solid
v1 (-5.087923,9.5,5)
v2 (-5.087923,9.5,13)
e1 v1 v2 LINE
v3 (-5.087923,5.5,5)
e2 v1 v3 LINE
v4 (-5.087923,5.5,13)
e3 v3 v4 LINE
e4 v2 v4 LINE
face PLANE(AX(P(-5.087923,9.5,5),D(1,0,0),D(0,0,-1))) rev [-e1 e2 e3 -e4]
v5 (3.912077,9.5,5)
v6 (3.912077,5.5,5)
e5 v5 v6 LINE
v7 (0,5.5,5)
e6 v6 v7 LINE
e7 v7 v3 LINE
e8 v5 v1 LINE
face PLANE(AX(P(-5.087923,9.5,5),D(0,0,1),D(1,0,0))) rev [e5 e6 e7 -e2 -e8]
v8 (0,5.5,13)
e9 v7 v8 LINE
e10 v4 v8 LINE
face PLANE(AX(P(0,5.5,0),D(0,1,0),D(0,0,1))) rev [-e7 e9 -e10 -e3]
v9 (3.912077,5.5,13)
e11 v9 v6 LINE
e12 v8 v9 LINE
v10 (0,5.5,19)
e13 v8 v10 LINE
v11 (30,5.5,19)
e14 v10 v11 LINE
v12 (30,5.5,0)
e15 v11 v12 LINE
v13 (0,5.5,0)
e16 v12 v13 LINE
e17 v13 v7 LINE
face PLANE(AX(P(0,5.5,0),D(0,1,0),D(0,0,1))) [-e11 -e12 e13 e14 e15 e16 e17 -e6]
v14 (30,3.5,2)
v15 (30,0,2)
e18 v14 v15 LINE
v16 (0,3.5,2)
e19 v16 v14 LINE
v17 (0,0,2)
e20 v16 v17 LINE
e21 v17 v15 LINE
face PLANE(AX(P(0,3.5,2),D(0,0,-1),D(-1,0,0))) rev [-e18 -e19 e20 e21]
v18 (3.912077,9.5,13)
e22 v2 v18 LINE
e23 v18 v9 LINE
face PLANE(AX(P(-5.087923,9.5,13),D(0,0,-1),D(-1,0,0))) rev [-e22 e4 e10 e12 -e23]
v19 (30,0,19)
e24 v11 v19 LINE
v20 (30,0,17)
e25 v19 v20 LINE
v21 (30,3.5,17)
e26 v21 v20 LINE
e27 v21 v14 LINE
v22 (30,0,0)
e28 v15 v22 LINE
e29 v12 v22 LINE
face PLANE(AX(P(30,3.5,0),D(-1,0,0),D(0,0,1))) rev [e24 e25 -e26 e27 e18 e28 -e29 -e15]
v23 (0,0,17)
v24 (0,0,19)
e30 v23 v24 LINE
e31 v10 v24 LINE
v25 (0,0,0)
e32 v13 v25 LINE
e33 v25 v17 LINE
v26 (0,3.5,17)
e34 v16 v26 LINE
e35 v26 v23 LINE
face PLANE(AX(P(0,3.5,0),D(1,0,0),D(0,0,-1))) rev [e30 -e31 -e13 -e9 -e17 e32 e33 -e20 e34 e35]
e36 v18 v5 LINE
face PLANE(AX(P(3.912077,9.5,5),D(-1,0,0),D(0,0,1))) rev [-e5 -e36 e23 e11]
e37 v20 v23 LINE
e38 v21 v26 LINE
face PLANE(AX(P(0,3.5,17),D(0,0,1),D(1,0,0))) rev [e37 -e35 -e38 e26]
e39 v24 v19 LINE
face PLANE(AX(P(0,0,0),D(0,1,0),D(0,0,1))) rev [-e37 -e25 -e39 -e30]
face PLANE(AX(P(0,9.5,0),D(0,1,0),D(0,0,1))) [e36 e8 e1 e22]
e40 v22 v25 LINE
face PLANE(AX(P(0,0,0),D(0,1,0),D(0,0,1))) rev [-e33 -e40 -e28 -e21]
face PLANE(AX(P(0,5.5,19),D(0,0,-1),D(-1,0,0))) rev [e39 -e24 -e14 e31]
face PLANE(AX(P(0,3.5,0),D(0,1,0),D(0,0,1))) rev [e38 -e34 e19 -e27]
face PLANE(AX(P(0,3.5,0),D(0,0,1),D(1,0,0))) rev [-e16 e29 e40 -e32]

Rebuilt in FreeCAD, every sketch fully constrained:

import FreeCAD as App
import Part
import Sketcher


def add_polygon(sketch, points):
    """Adds a closed chain of lines whose ends are joined by coincident constraints."""
    first, n = sketch.GeometryCount, len(points)
    for a, b in zip(points, points[1:] + points[:1]):
        sketch.addGeometry(Part.LineSegment(App.Vector(*a, 0), App.Vector(*b, 0)), False)
    for i in range(n):
        sketch.addConstraint(Sketcher.Constraint("Coincident", first + i, 2, first + (i + 1) % n, 1))

doc = App.newDocument("Part")
body = doc.addObject("PartDesign::Body", "Body")

sketch1 = body.newObject("Sketcher::SketchObject", "Sketch")
sketch1.AttachmentSupport = (doc.getObject("XZ_Plane"), [""])
sketch1.MapMode = "FlatFace"
add_polygon(sketch1, [(0, 0), (0, 2), (30, 2), (30, 0)])
sketch1.addConstraint(Sketcher.Constraint("Vertical", 0))
sketch1.addConstraint(Sketcher.Constraint("Horizontal", 1))
sketch1.addConstraint(Sketcher.Constraint("Vertical", 2))
sketch1.addConstraint(Sketcher.Constraint("Horizontal", 3))
sketch1.addConstraint(Sketcher.Constraint("Coincident", 3, 2, -1, 1))
sketch1.addConstraint(Sketcher.Constraint("DistanceX", 1, 1, 1, 2, 30.0))
sketch1.addConstraint(Sketcher.Constraint("DistanceY", 0, 1, 0, 2, 2.0))
pad1 = body.newObject("PartDesign::Pad", "Pad")
pad1.Profile = sketch1
pad1.Length = 3.5
pad1.Reversed = True
body2 = doc.addObject("PartDesign::Body", "Body001")

sketch2 = body2.newObject("Sketcher::SketchObject", "Sketch001")
sketch2.AttachmentSupport = (doc.getObject("XZ_Plane001"), [""])
sketch2.MapMode = "FlatFace"
add_polygon(sketch2, [(0, 17), (0, 19), (30, 19), (30, 17)])
sketch2.addConstraint(Sketcher.Constraint("Vertical", 0))
sketch2.addConstraint(Sketcher.Constraint("Horizontal", 1))
sketch2.addConstraint(Sketcher.Constraint("Vertical", 2))
sketch2.addConstraint(Sketcher.Constraint("Horizontal", 3))
sketch2.addConstraint(Sketcher.Constraint("PointOnObject", 0, 2, -2))
sketch2.addConstraint(Sketcher.Constraint("DistanceX", 1, 1, 1, 2, 30.0))
sketch2.addConstraint(Sketcher.Constraint("DistanceY", 0, 1, 0, 2, 2.0))
sketch2.addConstraint(Sketcher.Constraint("DistanceY", -1, 1, 0, 2, 19.0))
pad2 = body2.newObject("PartDesign::Pad", "Pad001")
pad2.Profile = sketch2
pad2.Length = 3.5
pad2.Reversed = True
body.AllowCompound = True
doc.recompute()

boolean = body.newObject("PartDesign::Boolean", "Boolean")
boolean.Type = "Fuse"
boolean.addObjects([body2])

sketch3 = body.newObject("Sketcher::SketchObject", "Sketch002")
sketch3.AttachmentSupport = (doc.getObject("XZ_Plane"), [""])
sketch3.MapMode = "FlatFace"
sketch3.AttachmentOffset = App.Placement(App.Vector(0, 0, -3.5), App.Rotation())
add_polygon(sketch3, [(0, 0), (0, 19), (30, 19), (30, 0)])
sketch3.addConstraint(Sketcher.Constraint("Vertical", 0))
sketch3.addConstraint(Sketcher.Constraint("Horizontal", 1))
sketch3.addConstraint(Sketcher.Constraint("Vertical", 2))
sketch3.addConstraint(Sketcher.Constraint("Horizontal", 3))
sketch3.addConstraint(Sketcher.Constraint("Coincident", 3, 2, -1, 1))
sketch3.addConstraint(Sketcher.Constraint("DistanceX", 1, 1, 1, 2, 30.0))
sketch3.addConstraint(Sketcher.Constraint("DistanceY", 0, 1, 0, 2, 19.0))
pad3 = body.newObject("PartDesign::Pad", "Pad002")
pad3.Profile = sketch3
pad3.Length = 2
pad3.Reversed = True

sketch4 = body.newObject("Sketcher::SketchObject", "Sketch003")
sketch4.AttachmentSupport = (doc.getObject("XZ_Plane"), [""])
sketch4.MapMode = "FlatFace"
sketch4.AttachmentOffset = App.Placement(App.Vector(0, 0, -5.5), App.Rotation())
add_polygon(sketch4, [(-5.087923, 5), (-5.087923, 13), (3.912077, 13), (3.912077, 5)])
sketch4.addConstraint(Sketcher.Constraint("Vertical", 0))
sketch4.addConstraint(Sketcher.Constraint("Horizontal", 1))
sketch4.addConstraint(Sketcher.Constraint("Vertical", 2))
sketch4.addConstraint(Sketcher.Constraint("Horizontal", 3))
sketch4.addConstraint(Sketcher.Constraint("DistanceX", 1, 1, 1, 2, 9.0))
sketch4.addConstraint(Sketcher.Constraint("DistanceY", 0, 1, 0, 2, 8.0))
sketch4.addConstraint(Sketcher.Constraint("DistanceY", -1, 1, 0, 2, 13.0))
sketch4.addConstraint(Sketcher.Constraint("DistanceX", 0, 2, -1, 1, 5.087923))
pad4 = body.newObject("PartDesign::Pad", "Pad003")
pad4.Profile = sketch4
pad4.Length = 4
pad4.Reversed = True

doc.recompute()
